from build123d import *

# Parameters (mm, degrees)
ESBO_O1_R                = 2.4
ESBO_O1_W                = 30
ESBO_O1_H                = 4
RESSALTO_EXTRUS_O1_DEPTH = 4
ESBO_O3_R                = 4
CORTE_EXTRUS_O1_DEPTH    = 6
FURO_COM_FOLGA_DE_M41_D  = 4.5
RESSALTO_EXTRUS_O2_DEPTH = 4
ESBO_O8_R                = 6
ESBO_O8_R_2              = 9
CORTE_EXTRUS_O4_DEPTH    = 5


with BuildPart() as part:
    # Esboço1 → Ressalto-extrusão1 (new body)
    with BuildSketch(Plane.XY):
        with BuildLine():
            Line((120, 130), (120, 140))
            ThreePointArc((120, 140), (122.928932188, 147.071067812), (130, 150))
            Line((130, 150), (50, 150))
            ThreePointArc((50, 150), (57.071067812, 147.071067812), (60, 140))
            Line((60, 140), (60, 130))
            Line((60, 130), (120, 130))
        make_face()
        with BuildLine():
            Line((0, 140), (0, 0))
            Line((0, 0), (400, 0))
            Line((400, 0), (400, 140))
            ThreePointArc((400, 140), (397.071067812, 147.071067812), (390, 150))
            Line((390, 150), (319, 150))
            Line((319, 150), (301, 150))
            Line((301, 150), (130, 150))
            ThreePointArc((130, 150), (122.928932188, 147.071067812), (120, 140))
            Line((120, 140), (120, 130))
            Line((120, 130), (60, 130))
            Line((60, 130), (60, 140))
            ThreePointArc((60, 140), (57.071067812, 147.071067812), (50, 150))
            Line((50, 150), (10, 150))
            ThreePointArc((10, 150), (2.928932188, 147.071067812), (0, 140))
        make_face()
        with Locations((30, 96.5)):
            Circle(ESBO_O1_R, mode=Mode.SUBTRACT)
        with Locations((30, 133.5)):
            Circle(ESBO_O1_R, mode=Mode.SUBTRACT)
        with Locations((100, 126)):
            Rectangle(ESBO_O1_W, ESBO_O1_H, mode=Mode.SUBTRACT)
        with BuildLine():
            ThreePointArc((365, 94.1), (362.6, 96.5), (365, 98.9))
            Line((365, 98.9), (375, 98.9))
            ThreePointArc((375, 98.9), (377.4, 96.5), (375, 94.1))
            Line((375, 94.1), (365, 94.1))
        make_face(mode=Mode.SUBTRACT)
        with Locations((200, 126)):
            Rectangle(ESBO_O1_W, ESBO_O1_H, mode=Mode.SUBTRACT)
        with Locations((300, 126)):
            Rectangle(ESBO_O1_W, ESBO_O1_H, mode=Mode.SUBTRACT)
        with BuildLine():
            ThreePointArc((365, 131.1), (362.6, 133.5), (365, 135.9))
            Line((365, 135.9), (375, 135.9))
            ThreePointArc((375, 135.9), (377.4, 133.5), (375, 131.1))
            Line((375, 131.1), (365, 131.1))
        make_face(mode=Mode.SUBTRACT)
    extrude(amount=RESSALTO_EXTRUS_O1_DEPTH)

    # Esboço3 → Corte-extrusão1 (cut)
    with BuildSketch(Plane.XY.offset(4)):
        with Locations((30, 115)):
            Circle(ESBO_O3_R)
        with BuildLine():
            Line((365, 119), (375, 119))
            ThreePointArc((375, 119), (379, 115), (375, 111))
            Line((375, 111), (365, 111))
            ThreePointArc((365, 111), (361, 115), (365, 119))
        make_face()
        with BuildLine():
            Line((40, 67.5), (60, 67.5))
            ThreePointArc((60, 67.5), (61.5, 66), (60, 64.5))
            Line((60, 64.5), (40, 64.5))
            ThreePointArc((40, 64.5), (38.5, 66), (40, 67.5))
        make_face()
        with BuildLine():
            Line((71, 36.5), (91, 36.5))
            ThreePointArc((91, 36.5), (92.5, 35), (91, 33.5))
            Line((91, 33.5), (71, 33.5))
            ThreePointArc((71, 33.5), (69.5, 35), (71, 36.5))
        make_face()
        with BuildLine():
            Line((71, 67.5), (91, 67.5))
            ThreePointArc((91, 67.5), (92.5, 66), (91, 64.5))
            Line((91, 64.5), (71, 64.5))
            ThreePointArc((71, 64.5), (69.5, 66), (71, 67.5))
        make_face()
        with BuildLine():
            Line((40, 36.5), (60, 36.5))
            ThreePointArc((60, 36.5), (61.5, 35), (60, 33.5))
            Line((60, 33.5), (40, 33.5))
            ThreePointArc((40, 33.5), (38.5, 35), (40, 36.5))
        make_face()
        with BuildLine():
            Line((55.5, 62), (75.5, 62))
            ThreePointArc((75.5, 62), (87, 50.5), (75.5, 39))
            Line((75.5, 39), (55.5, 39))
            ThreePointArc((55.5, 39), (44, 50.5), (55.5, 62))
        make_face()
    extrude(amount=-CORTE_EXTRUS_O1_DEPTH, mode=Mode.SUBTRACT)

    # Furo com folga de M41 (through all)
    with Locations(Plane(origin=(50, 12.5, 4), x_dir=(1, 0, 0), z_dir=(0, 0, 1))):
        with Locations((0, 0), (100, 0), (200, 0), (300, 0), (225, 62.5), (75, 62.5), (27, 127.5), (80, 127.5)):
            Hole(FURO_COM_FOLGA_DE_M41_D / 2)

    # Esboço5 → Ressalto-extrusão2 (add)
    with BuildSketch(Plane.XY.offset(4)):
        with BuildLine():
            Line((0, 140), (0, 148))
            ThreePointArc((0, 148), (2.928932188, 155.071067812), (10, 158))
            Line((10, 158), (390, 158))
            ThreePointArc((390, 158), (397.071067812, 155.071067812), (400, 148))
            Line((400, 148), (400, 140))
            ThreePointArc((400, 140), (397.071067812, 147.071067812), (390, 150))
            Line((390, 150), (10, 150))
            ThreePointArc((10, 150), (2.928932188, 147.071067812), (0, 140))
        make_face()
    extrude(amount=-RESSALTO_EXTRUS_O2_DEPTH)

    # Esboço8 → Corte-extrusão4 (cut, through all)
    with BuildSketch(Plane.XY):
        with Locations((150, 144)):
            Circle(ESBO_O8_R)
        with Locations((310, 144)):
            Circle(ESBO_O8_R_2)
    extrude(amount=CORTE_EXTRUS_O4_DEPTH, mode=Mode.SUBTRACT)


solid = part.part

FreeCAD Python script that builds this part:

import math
import FreeCAD as App
import Part
import Sketcher
from FreeCAD import Vector

doc = App.newDocument("Part")
body = doc.addObject("PartDesign::Body", "Body")

# Sketch on XY plane
sketch1 = body.newObject("Sketcher::SketchObject", "Sketch")
sketch1.AttachmentSupport = (doc.getObject("XY_Plane"), [""])
sketch1.MapMode = "FlatFace"
sketch1.addGeometry(Part.ArcOfCircle(Part.Circle(Vector(10, 140, 0), Vector(0, 0, 1), 10), math.radians(90), math.radians(180)), False)
sketch1.addGeometry(Part.LineSegment(Vector(0, 140, 0), Vector(0, 0, 0)), False)
sketch1.addGeometry(Part.LineSegment(Vector(0, 0, 0), Vector(400, 0, 0)), False)
sketch1.addGeometry(Part.LineSegment(Vector(400, 0, 0), Vector(400, 140, 0)), False)
sketch1.addGeometry(Part.ArcOfCircle(Part.Circle(Vector(390, 140, 0), Vector(0, 0, 1), 10), math.radians(0), math.radians(90)), False)
sketch1.addGeometry(Part.LineSegment(Vector(390, 150, 0), Vector(10, 150, 0)), False)
sketch1.addGeometry(Part.Circle(Vector(30, 96.5, 0), Vector(0, 0, 1), 2.4), False)
sketch1.addGeometry(Part.LineSegment(Vector(375, 94.1, 0), Vector(365, 94.1, 0)), False)
sketch1.addGeometry(Part.ArcOfCircle(Part.Circle(Vector(365, 96.5, 0), Vector(0, 0, 1), 2.4), math.radians(90), math.radians(270)), False)
sketch1.addGeometry(Part.LineSegment(Vector(365, 98.9, 0), Vector(375, 98.9, 0)), False)
sketch1.addGeometry(Part.ArcOfCircle(Part.Circle(Vector(375, 96.5, 0), Vector(0, 0, 1), 2.4), math.radians(-90), math.radians(90)), False)
sketch1.addGeometry(Part.LineSegment(Vector(115, 124, 0), Vector(85, 124, 0)), False)
sketch1.addGeometry(Part.LineSegment(Vector(85, 124, 0), Vector(85, 128, 0)), False)
sketch1.addGeometry(Part.LineSegment(Vector(85, 128, 0), Vector(115, 128, 0)), False)
sketch1.addGeometry(Part.LineSegment(Vector(115, 128, 0), Vector(115, 124, 0)), False)
sketch1.addGeometry(Part.Circle(Vector(30, 133.5, 0), Vector(0, 0, 1), 2.4), False)
sketch1.addGeometry(Part.LineSegment(Vector(215, 124, 0), Vector(185, 124, 0)), False)
sketch1.addGeometry(Part.LineSegment(Vector(185, 124, 0), Vector(185, 128, 0)), False)
sketch1.addGeometry(Part.LineSegment(Vector(185, 128, 0), Vector(215, 128, 0)), False)
sketch1.addGeometry(Part.LineSegment(Vector(215, 128, 0), Vector(215, 124, 0)), False)
sketch1.addGeometry(Part.LineSegment(Vector(315, 124, 0), Vector(285, 124, 0)), False)
sketch1.addGeometry(Part.LineSegment(Vector(285, 124, 0), Vector(285, 128, 0)), False)
sketch1.addGeometry(Part.LineSegment(Vector(285, 128, 0), Vector(315, 128, 0)), False)
sketch1.addGeometry(Part.LineSegment(Vector(315, 128, 0), Vector(315, 124, 0)), False)
sketch1.addGeometry(Part.LineSegment(Vector(375, 131.1, 0), Vector(365, 131.1, 0)), False)
sketch1.addGeometry(Part.ArcOfCircle(Part.Circle(Vector(365, 133.5, 0), Vector(0, 0, 1), 2.4), math.radians(90), math.radians(270)), False)
sketch1.addGeometry(Part.LineSegment(Vector(365, 135.9, 0), Vector(375, 135.9, 0)), False)
sketch1.addGeometry(Part.ArcOfCircle(Part.Circle(Vector(375, 133.5, 0), Vector(0, 0, 1), 2.4), math.radians(-90), math.radians(90)), False)
sketch1.addConstraint(Sketcher.Constraint("Tangent", 0, 2, 1, 1))
sketch1.addConstraint(Sketcher.Constraint("Coincident", 1, 2, 2, 1))
sketch1.addConstraint(Sketcher.Constraint("Coincident", 2, 2, 3, 1))
sketch1.addConstraint(Sketcher.Constraint("Tangent", 3, 2, 4, 1))
sketch1.addConstraint(Sketcher.Constraint("Tangent", 4, 2, 5, 1))
sketch1.addConstraint(Sketcher.Constraint("Tangent", 5, 2, 0, 1))
sketch1.addConstraint(Sketcher.Constraint("Tangent", 7, 2, 8, 2))
sketch1.addConstraint(Sketcher.Constraint("Tangent", 8, 1, 9, 1))
sketch1.addConstraint(Sketcher.Constraint("Tangent", 9, 2, 10, 2))
sketch1.addConstraint(Sketcher.Constraint("Tangent", 10, 1, 7, 1))
sketch1.addConstraint(Sketcher.Constraint("Coincident", 11, 2, 12, 1))
sketch1.addConstraint(Sketcher.Constraint("Coincident", 12, 2, 13, 1))
sketch1.addConstraint(Sketcher.Constraint("Coincident", 13, 2, 14, 1))
sketch1.addConstraint(Sketcher.Constraint("Coincident", 14, 2, 11, 1))
sketch1.addConstraint(Sketcher.Constraint("Coincident", 16, 2, 17, 1))
sketch1.addConstraint(Sketcher.Constraint("Coincident", 17, 2, 18, 1))
sketch1.addConstraint(Sketcher.Constraint("Coincident", 18, 2, 19, 1))
sketch1.addConstraint(Sketcher.Constraint("Coincident", 19, 2, 16, 1))
sketch1.addConstraint(Sketcher.Constraint("Coincident", 20, 2, 21, 1))
sketch1.addConstraint(Sketcher.Constraint("Coincident", 21, 2, 22, 1))
sketch1.addConstraint(Sketcher.Constraint("Coincident", 22, 2, 23, 1))
sketch1.addConstraint(Sketcher.Constraint("Coincident", 23, 2, 20, 1))
sketch1.addConstraint(Sketcher.Constraint("Tangent", 24, 2, 25, 2))
sketch1.addConstraint(Sketcher.Constraint("Tangent", 25, 1, 26, 1))
sketch1.addConstraint(Sketcher.Constraint("Tangent", 26, 2, 27, 2))
sketch1.addConstraint(Sketcher.Constraint("Tangent", 27, 1, 24, 1))
sketch1.addConstraint(Sketcher.Constraint("Vertical", 1))
sketch1.addConstraint(Sketcher.Constraint("Horizontal", 2))
sketch1.addConstraint(Sketcher.Constraint("Vertical", 3))
sketch1.addConstraint(Sketcher.Constraint("Horizontal", 5))
sketch1.addConstraint(Sketcher.Constraint("Horizontal", 7))
sketch1.addConstraint(Sketcher.Constraint("Horizontal", 9))
sketch1.addConstraint(Sketcher.Constraint("Horizontal", 11))
sketch1.addConstraint(Sketcher.Constraint("Vertical", 12))
sketch1.addConstraint(Sketcher.Constraint("Horizontal", 13))
sketch1.addConstraint(Sketcher.Constraint("Vertical", 14))
sketch1.addConstraint(Sketcher.Constraint("Horizontal", 16))
sketch1.addConstraint(Sketcher.Constraint("Vertical", 17))
sketch1.addConstraint(Sketcher.Constraint("Horizontal", 18))
sketch1.addConstraint(Sketcher.Constraint("Vertical", 19))
sketch1.addConstraint(Sketcher.Constraint("Horizontal", 20))
sketch1.addConstraint(Sketcher.Constraint("Vertical", 21))
sketch1.addConstraint(Sketcher.Constraint("Horizontal", 22))
sketch1.addConstraint(Sketcher.Constraint("Vertical", 23))
sketch1.addConstraint(Sketcher.Constraint("Horizontal", 24))
sketch1.addConstraint(Sketcher.Constraint("Horizontal", 26))
sketch1.addConstraint(Sketcher.Constraint("Coincident", 1, 2, -1, 1))
sketch1.addConstraint(Sketcher.Constraint("Equal", 0, 4))
sketch1.addConstraint(Sketcher.Constraint("Equal", 6, 8))
sketch1.addConstraint(Sketcher.Constraint("Equal", 10, 15))
sketch1.addConstraint(Sketcher.Constraint("Equal", 15, 25))
sketch1.addConstraint(Sketcher.Constraint("Horizontal", 6, 3, 8, 3))
sketch1.addConstraint(Sketcher.Constraint("Horizontal", 15, 3, 25, 3))
sketch1.addConstraint(Sketcher.Constraint("Horizontal", 14, 2, 16, 2))
sketch1.addConstraint(Sketcher.Constraint("Horizontal", 13, 2, 17, 2))
sketch1.addConstraint(Sketcher.Constraint("Horizontal", 19, 2, 20, 2))
sketch1.addConstraint(Sketcher.Constraint("Horizontal", 18, 2, 21, 2))
sketch1.addConstraint(Sketcher.Constraint("Vertical", 6, 3, 15, 3))
sketch1.addConstraint(Sketcher.Constraint("Vertical", 8, 3, 25, 3))
sketch1.addConstraint(Sketcher.Constraint("Vertical", 10, 3, 27, 3))
sketch1.addConstraint(Sketcher.Constraint("Equal", 13, 16))
sketch1.addConstraint(Sketcher.Constraint("Equal", 18, 20))
sketch1.addConstraint(Sketcher.Constraint("Radius", 0, 10.0))
sketch1.addConstraint(Sketcher.Constraint("Diameter", 6, 4.8))
sketch1.addConstraint(Sketcher.Constraint("DistanceX", 2, 1, 2, 2, 400.0))
sketch1.addConstraint(Sketcher.Constraint("DistanceX", 7, 2, 7, 1, 10.0))
sketch1.addConstraint(Sketcher.Constraint("DistanceX", 11, 2, 11, 1, 30.0))
sketch1.addConstraint(Sketcher.Constraint("DistanceY", 1, 2, 1, 1, 140.0))
sketch1.addConstraint(Sketcher.Constraint("DistanceY", 12, 1, 12, 2, 4.0))
sketch1.addConstraint(Sketcher.Constraint("DistanceX", -1, 1, 6, 3, 30.0))
sketch1.addConstraint(Sketcher.Constraint("DistanceX", -1, 1, 8, 3, 365.0))
sketch1.addConstraint(Sketcher.Constraint("DistanceX", -1, 1, 11, 2, 85.0))
sketch1.addConstraint(Sketcher.Constraint("DistanceY", -1, 1, 11, 2, 124.0))
sketch1.addConstraint(Sketcher.Constraint("DistanceX", -1, 1, 16, 2, 185.0))
sketch1.addConstraint(Sketcher.Constraint("DistanceX", -1, 1, 20, 2, 285.0))
sketch1.addConstraint(Sketcher.Constraint("DistanceY", 6, 3, 15, 3, 37.0))
sketch1.addConstraint(Sketcher.Constraint("DistanceY", -1, 1, 6, 3, 96.5))
pad1 = body.newObject("PartDesign::Pad", "Pad")
pad1.Profile = sketch1
pad1.Length = 4

# Sketch on XY plane
sketch2 = body.newObject("Sketcher::SketchObject", "Sketch001")
sketch2.AttachmentSupport = (doc.getObject("XY_Plane"), [""])
sketch2.MapMode = "FlatFace"
sketch2.AttachmentOffset = App.Placement(Vector(0, 0, 4), App.Rotation())
sketch2.addGeometry(Part.Circle(Vector(30, 115, 0), Vector(0, 0, 1), 4), False)
sketch2.addGeometry(Part.LineSegment(Vector(375, 119, 0), Vector(365, 119, 0)), False)
sketch2.addGeometry(Part.ArcOfCircle(Part.Circle(Vector(365, 115, 0), Vector(0, 0, 1), 4), math.radians(90), math.radians(270)), False)
sketch2.addGeometry(Part.LineSegment(Vector(365, 111, 0), Vector(375, 111, 0)), False)
sketch2.addGeometry(Part.ArcOfCircle(Part.Circle(Vector(375, 115, 0), Vector(0, 0, 1), 4), math.radians(-90), math.radians(90)), False)
sketch2.addGeometry(Part.LineSegment(Vector(60, 67.5, 0), Vector(40, 67.5, 0)), False)
sketch2.addGeometry(Part.ArcOfCircle(Part.Circle(Vector(40, 66, 0), Vector(0, 0, 1), 1.5), math.radians(90), math.radians(270)), False)
sketch2.addGeometry(Part.LineSegment(Vector(40, 64.5, 0), Vector(60, 64.5, 0)), False)
sketch2.addGeometry(Part.ArcOfCircle(Part.Circle(Vector(60, 66, 0), Vector(0, 0, 1), 1.5), math.radians(-90), math.radians(90)), False)
sketch2.addGeometry(Part.LineSegment(Vector(91, 36.5, 0), Vector(71, 36.5, 0)), False)
sketch2.addGeometry(Part.ArcOfCircle(Part.Circle(Vector(71, 35, 0), Vector(0, 0, 1), 1.5), math.radians(90), math.radians(270)), False)
sketch2.addGeometry(Part.LineSegment(Vector(71, 33.5, 0), Vector(91, 33.5, 0)), False)
sketch2.addGeometry(Part.ArcOfCircle(Part.Circle(Vector(91, 35, 0), Vector(0, 0, 1), 1.5), math.radians(-90), math.radians(90)), False)
sketch2.addGeometry(Part.LineSegment(Vector(91, 67.5, 0), Vector(71, 67.5, 0)), False)
sketch2.addGeometry(Part.ArcOfCircle(Part.Circle(Vector(71, 66, 0), Vector(0, 0, 1), 1.5), math.radians(90), math.radians(270)), False)
sketch2.addGeometry(Part.LineSegment(Vector(71, 64.5, 0), Vector(91, 64.5, 0)), False)
sketch2.addGeometry(Part.ArcOfCircle(Part.Circle(Vector(91, 66, 0), Vector(0, 0, 1), 1.5), math.radians(-90), math.radians(90)), False)
sketch2.addGeometry(Part.LineSegment(Vector(60, 36.5, 0), Vector(40, 36.5, 0)), False)
sketch2.addGeometry(Part.ArcOfCircle(Part.Circle(Vector(40, 35, 0), Vector(0, 0, 1), 1.5), math.radians(90), math.radians(270)), False)
sketch2.addGeometry(Part.LineSegment(Vector(40, 33.5, 0), Vector(60, 33.5, 0)), False)
sketch2.addGeometry(Part.ArcOfCircle(Part.Circle(Vector(60, 35, 0), Vector(0, 0, 1), 1.5), math.radians(-90), math.radians(90)), False)
sketch2.addGeometry(Part.LineSegment(Vector(75.5, 62, 0), Vector(55.5, 62, 0)), False)
sketch2.addGeometry(Part.ArcOfCircle(Part.Circle(Vector(55.5, 50.5, 0), Vector(0, 0, 1), 11.5), math.radians(90), math.radians(270)), False)
sketch2.addGeometry(Part.LineSegment(Vector(55.5, 39, 0), Vector(75.5, 39, 0)), False)
sketch2.addGeometry(Part.ArcOfCircle(Part.Circle(Vector(75.5, 50.5, 0), Vector(0, 0, 1), 11.5), math.radians(-90), math.radians(90)), False)
sketch2.addConstraint(Sketcher.Constraint("Tangent", 1, 2, 2, 1))
sketch2.addConstraint(Sketcher.Constraint("Tangent", 2, 2, 3, 1))
sketch2.addConstraint(Sketcher.Constraint("Tangent", 3, 2, 4, 1))
sketch2.addConstraint(Sketcher.Constraint("Tangent", 4, 2, 1, 1))
sketch2.addConstraint(Sketcher.Constraint("Tangent", 5, 2, 6, 1))
sketch2.addConstraint(Sketcher.Constraint("Tangent", 6, 2, 7, 1))
sketch2.addConstraint(Sketcher.Constraint("Tangent", 7, 2, 8, 1))
sketch2.addConstraint(Sketcher.Constraint("Tangent", 8, 2, 5, 1))
sketch2.addConstraint(Sketcher.Constraint("Tangent", 9, 2, 10, 1))
sketch2.addConstraint(Sketcher.Constraint("Tangent", 10, 2, 11, 1))
sketch2.addConstraint(Sketcher.Constraint("Tangent", 11, 2, 12, 1))
sketch2.addConstraint(Sketcher.Constraint("Tangent", 12, 2, 9, 1))
sketch2.addConstraint(Sketcher.Constraint("Tangent", 13, 2, 14, 1))
sketch2.addConstraint(Sketcher.Constraint("Tangent", 14, 2, 15, 1))
sketch2.addConstraint(Sketcher.Constraint("Tangent", 15, 2, 16, 1))
sketch2.addConstraint(Sketcher.Constraint("Tangent", 16, 2, 13, 1))
sketch2.addConstraint(Sketcher.Constraint("Tangent", 17, 2, 18, 1))
sketch2.addConstraint(Sketcher.Constraint("Tangent", 18, 2, 19, 1))
sketch2.addConstraint(Sketcher.Constraint("Tangent", 19, 2, 20, 1))
sketch2.addConstraint(Sketcher.Constraint("Tangent", 20, 2, 17, 1))
sketch2.addConstraint(Sketcher.Constraint("Tangent", 21, 2, 22, 1))
sketch2.addConstraint(Sketcher.Constraint("Tangent", 22, 2, 23, 1))
sketch2.addConstraint(Sketcher.Constraint("Tangent", 23, 2, 24, 1))
sketch2.addConstraint(Sketcher.Constraint("Tangent", 24, 2, 21, 1))
sketch2.addConstraint(Sketcher.Constraint("Horizontal", 1))
sketch2.addConstraint(Sketcher.Constraint("Horizontal", 3))
sketch2.addConstraint(Sketcher.Constraint("Horizontal", 5))
sketch2.addConstraint(Sketcher.Constraint("Horizontal", 7))
sketch2.addConstraint(Sketcher.Constraint("Horizontal", 9))
sketch2.addConstraint(Sketcher.Constraint("Horizontal", 11))
sketch2.addConstraint(Sketcher.Constraint("Horizontal", 13))
sketch2.addConstraint(Sketcher.Constraint("Horizontal", 15))
sketch2.addConstraint(Sketcher.Constraint("Horizontal", 17))
sketch2.addConstraint(Sketcher.Constraint("Horizontal", 19))
sketch2.addConstraint(Sketcher.Constraint("Horizontal", 21))
sketch2.addConstraint(Sketcher.Constraint("Horizontal", 23))
sketch2.addConstraint(Sketcher.Constraint("Equal", 0, 2))
sketch2.addConstraint(Sketcher.Constraint("Equal", 8, 10))
sketch2.addConstraint(Sketcher.Constraint("Equal", 12, 14))
sketch2.addConstraint(Sketcher.Constraint("Equal", 16, 18))
sketch2.addConstraint(Sketcher.Constraint("Horizontal", 0, 3, 2, 3))
sketch2.addConstraint(Sketcher.Constraint("Horizontal", 8, 3, 14, 3))
sketch2.addConstraint(Sketcher.Constraint("Horizontal", 12, 3, 18, 3))
sketch2.addConstraint(Sketcher.Constraint("Vertical", 10, 3, 14, 3))
sketch2.addConstraint(Sketcher.Constraint("Vertical", 12, 3, 16, 3))
sketch2.addConstraint(Sketcher.Constraint("Vertical", 6, 3, 18, 3))
sketch2.addConstraint(Sketcher.Constraint("Vertical", 8, 3, 20, 3))
sketch2.addConstraint(Sketcher.Constraint("Equal", 7, 9))
sketch2.addConstraint(Sketcher.Constraint("Equal", 19, 21))
sketch2.addConstraint(Sketcher.Constraint("Diameter", 0, 8.0))
sketch2.addConstraint(Sketcher.Constraint("Radius", 6, 1.5))
sketch2.addConstraint(Sketcher.Constraint("Radius", 22, 11.5))
sketch2.addConstraint(Sketcher.Constraint("DistanceX", 1, 2, 1, 1, 10.0))
sketch2.addConstraint(Sketcher.Constraint("DistanceX", 5, 2, 5, 1, 20.0))
sketch2.addConstraint(Sketcher.Constraint("DistanceX", -1, 1, 0, 3, 30.0))
sketch2.addConstraint(Sketcher.Constraint("DistanceY", -1, 1, 0, 3, 115.0))
sketch2.addConstraint(Sketcher.Constraint("DistanceX", -1, 1, 2, 3, 365.0))
sketch2.addConstraint(Sketcher.Constraint("DistanceX", -1, 1, 6, 3, 40.0))
sketch2.addConstraint(Sketcher.Constraint("DistanceY", -1, 1, 6, 3, 66.0))
sketch2.addConstraint(Sketcher.Constraint("DistanceX", -1, 1, 10, 3, 71.0))
sketch2.addConstraint(Sketcher.Constraint("DistanceY", -1, 1, 10, 3, 35.0))
sketch2.addConstraint(Sketcher.Constraint("DistanceY", -1, 1, 21, 2, 62.0))
sketch2.addConstraint(Sketcher.Constraint("DistanceX", -1, 1, 22, 3, 55.5))
pocket1 = body.newObject("PartDesign::Pocket", "Pocket")
pocket1.Profile = sketch2
pocket1.Length = 6

# Sketch on XY plane
sketch3 = body.newObject("Sketcher::SketchObject", "Sketch002")
sketch3.AttachmentSupport = (doc.getObject("XY_Plane"), [""])
sketch3.MapMode = "FlatFace"
sketch3.AttachmentOffset = App.Placement(Vector(0, 0, 4), App.Rotation())
sketch3.addGeometry(Part.Circle(Vector(50, 12.5, 0), Vector(0, 0, 1), 2.25), False)
sketch3.addGeometry(Part.Circle(Vector(150, 12.5, 0), Vector(0, 0, 1), 2.25), False)
sketch3.addGeometry(Part.Circle(Vector(250, 12.5, 0), Vector(0, 0, 1), 2.25), False)
sketch3.addGeometry(Part.Circle(Vector(350, 12.5, 0), Vector(0, 0, 1), 2.25), False)
sketch3.addGeometry(Part.Circle(Vector(275, 75, 0), Vector(0, 0, 1), 2.25), False)
sketch3.addGeometry(Part.Circle(Vector(125, 75, 0), Vector(0, 0, 1), 2.25), False)
sketch3.addGeometry(Part.Circle(Vector(77, 140, 0), Vector(0, 0, 1), 2.25), False)
sketch3.addGeometry(Part.Circle(Vector(130, 140, 0), Vector(0, 0, 1), 2.25), False)
sketch3.addConstraint(Sketcher.Constraint("Equal", 0, 1))
sketch3.addConstraint(Sketcher.Constraint("Equal", 1, 2))
sketch3.addConstraint(Sketcher.Constraint("Equal", 2, 3))
sketch3.addConstraint(Sketcher.Constraint("Equal", 3, 4))
sketch3.addConstraint(Sketcher.Constraint("Equal", 4, 5))
sketch3.addConstraint(Sketcher.Constraint("Equal", 5, 6))
sketch3.addConstraint(Sketcher.Constraint("Equal", 6, 7))
sketch3.addConstraint(Sketcher.Constraint("Horizontal", 0, 3, 1, 3))
sketch3.addConstraint(Sketcher.Constraint("Horizontal", 1, 3, 2, 3))
sketch3.addConstraint(Sketcher.Constraint("Horizontal", 2, 3, 3, 3))
sketch3.addConstraint(Sketcher.Constraint("Horizontal", 4, 3, 5, 3))
sketch3.addConstraint(Sketcher.Constraint("Horizontal", 6, 3, 7, 3))
sketch3.addConstraint(Sketcher.Constraint("Diameter", 0, 4.5))
sketch3.addConstraint(Sketcher.Constraint("DistanceX", -1, 1, 0, 3, 50.0))
sketch3.addConstraint(Sketcher.Constraint("DistanceX", -1, 1, 1, 3, 150.0))
sketch3.addConstraint(Sketcher.Constraint("DistanceX", -1, 1, 2, 3, 250.0))
sketch3.addConstraint(Sketcher.Constraint("DistanceX", -1, 1, 3, 3, 350.0))
sketch3.addConstraint(Sketcher.Constraint("DistanceX", -1, 1, 4, 3, 275.0))
sketch3.addConstraint(Sketcher.Constraint("DistanceY", -1, 1, 4, 3, 75.0))
sketch3.addConstraint(Sketcher.Constraint("DistanceX", -1, 1, 5, 3, 125.0))
sketch3.addConstraint(Sketcher.Constraint("DistanceX", -1, 1, 6, 3, 77.0))
sketch3.addConstraint(Sketcher.Constraint("DistanceY", -1, 1, 6, 3, 140.0))
sketch3.addConstraint(Sketcher.Constraint("DistanceX", -1, 1, 7, 3, 130.0))
sketch3.addConstraint(Sketcher.Constraint("DistanceY", -1, 1, 0, 3, 12.5))
doc.recompute()
hole = body.newObject("PartDesign::Hole", "Hole")
hole.Profile = sketch3
hole.ThreadType = "None"
hole.Diameter = 4.5
hole.DepthType = "ThroughAll"

# Sketch on XY plane
sketch4 = body.newObject("Sketcher::SketchObject", "Sketch003")
sketch4.AttachmentSupport = (doc.getObject("XY_Plane"), [""])
sketch4.MapMode = "FlatFace"
sketch4.AttachmentOffset = App.Placement(Vector(0, 0, 4), App.Rotation())
sketch4.addGeometry(Part.LineSegment(Vector(0, 148, 0), Vector(0, 140, 0)), False)
sketch4.addGeometry(Part.ArcOfCircle(Part.Circle(Vector(10, 140, 0), Vector(0, 0, 1), 10), math.radians(90), math.radians(180)), False)
sketch4.addGeometry(Part.LineSegment(Vector(10, 150, 0), Vector(390, 150, 0)), False)
sketch4.addGeometry(Part.ArcOfCircle(Part.Circle(Vector(390, 140, 0), Vector(0, 0, 1), 10), math.radians(0), math.radians(90)), False)
sketch4.addGeometry(Part.LineSegment(Vector(400, 140, 0), Vector(400, 148, 0)), False)
sketch4.addGeometry(Part.ArcOfCircle(Part.Circle(Vector(390, 148, 0), Vector(0, 0, 1), 10), math.radians(0), math.radians(90)), False)
sketch4.addGeometry(Part.LineSegment(Vector(390, 158, 0), Vector(10, 158, 0)), False)
sketch4.addGeometry(Part.ArcOfCircle(Part.Circle(Vector(10, 148, 0), Vector(0, 0, 1), 10), math.radians(90), math.radians(180)), False)
sketch4.addConstraint(Sketcher.Constraint("Tangent", 0, 2, 1, 2))
sketch4.addConstraint(Sketcher.Constraint("Tangent", 1, 1, 2, 1))
sketch4.addConstraint(Sketcher.Constraint("Tangent", 2, 2, 3, 2))
sketch4.addConstraint(Sketcher.Constraint("Tangent", 3, 1, 4, 1))
sketch4.addConstraint(Sketcher.Constraint("Tangent", 4, 2, 5, 1))
sketch4.addConstraint(Sketcher.Constraint("Tangent", 5, 2, 6, 1))
sketch4.addConstraint(Sketcher.Constraint("Tangent", 6, 2, 7, 1))
sketch4.addConstraint(Sketcher.Constraint("Tangent", 7, 2, 0, 1))
sketch4.addConstraint(Sketcher.Constraint("Vertical", 0))
sketch4.addConstraint(Sketcher.Constraint("Horizontal", 2))
sketch4.addConstraint(Sketcher.Constraint("Vertical", 4))
sketch4.addConstraint(Sketcher.Constraint("Horizontal", 6))
sketch4.addConstraint(Sketcher.Constraint("Equal", 1, 3))
sketch4.addConstraint(Sketcher.Constraint("Equal", 3, 5))
sketch4.addConstraint(Sketcher.Constraint("Equal", 5, 7))
sketch4.addConstraint(Sketcher.Constraint("PointOnObject", 0, 2, -2))
sketch4.addConstraint(Sketcher.Constraint("Radius", 1, 10.0))
sketch4.addConstraint(Sketcher.Constraint("DistanceX", 2, 1, 2, 2, 380.0))
sketch4.addConstraint(Sketcher.Constraint("DistanceY", 0, 2, 0, 1, 8.0))
sketch4.addConstraint(Sketcher.Constraint("DistanceY", -1, 1, 1, 3, 140.0))
pad2 = body.newObject("PartDesign::Pad", "Pad001")
pad2.Profile = sketch4
pad2.Length = 4
pad2.Reversed = True

# Sketch on XY plane
sketch5 = body.newObject("Sketcher::SketchObject", "Sketch004")
sketch5.AttachmentSupport = (doc.getObject("XY_Plane"), [""])
sketch5.MapMode = "FlatFace"
sketch5.addGeometry(Part.Circle(Vector(150, 144, 0), Vector(0, 0, 1), 6), False)
sketch5.addGeometry(Part.Circle(Vector(310, 144, 0), Vector(0, 0, 1), 9), False)
sketch5.addConstraint(Sketcher.Constraint("Horizontal", 0, 3, 1, 3))
sketch5.addConstraint(Sketcher.Constraint("Diameter", 0, 12.0))
sketch5.addConstraint(Sketcher.Constraint("Diameter", 1, 18.0))
sketch5.addConstraint(Sketcher.Constraint("DistanceX", -1, 1, 0, 3, 150.0))
sketch5.addConstraint(Sketcher.Constraint("DistanceY", -1, 1, 0, 3, 144.0))
sketch5.addConstraint(Sketcher.Constraint("DistanceX", -1, 1, 1, 3, 310.0))
pocket2 = body.newObject("PartDesign::Pocket", "Pocket001")
pocket2.Profile = sketch5
pocket2.Type = "ThroughAll"
pocket2.Reversed = True

doc.recompute()
